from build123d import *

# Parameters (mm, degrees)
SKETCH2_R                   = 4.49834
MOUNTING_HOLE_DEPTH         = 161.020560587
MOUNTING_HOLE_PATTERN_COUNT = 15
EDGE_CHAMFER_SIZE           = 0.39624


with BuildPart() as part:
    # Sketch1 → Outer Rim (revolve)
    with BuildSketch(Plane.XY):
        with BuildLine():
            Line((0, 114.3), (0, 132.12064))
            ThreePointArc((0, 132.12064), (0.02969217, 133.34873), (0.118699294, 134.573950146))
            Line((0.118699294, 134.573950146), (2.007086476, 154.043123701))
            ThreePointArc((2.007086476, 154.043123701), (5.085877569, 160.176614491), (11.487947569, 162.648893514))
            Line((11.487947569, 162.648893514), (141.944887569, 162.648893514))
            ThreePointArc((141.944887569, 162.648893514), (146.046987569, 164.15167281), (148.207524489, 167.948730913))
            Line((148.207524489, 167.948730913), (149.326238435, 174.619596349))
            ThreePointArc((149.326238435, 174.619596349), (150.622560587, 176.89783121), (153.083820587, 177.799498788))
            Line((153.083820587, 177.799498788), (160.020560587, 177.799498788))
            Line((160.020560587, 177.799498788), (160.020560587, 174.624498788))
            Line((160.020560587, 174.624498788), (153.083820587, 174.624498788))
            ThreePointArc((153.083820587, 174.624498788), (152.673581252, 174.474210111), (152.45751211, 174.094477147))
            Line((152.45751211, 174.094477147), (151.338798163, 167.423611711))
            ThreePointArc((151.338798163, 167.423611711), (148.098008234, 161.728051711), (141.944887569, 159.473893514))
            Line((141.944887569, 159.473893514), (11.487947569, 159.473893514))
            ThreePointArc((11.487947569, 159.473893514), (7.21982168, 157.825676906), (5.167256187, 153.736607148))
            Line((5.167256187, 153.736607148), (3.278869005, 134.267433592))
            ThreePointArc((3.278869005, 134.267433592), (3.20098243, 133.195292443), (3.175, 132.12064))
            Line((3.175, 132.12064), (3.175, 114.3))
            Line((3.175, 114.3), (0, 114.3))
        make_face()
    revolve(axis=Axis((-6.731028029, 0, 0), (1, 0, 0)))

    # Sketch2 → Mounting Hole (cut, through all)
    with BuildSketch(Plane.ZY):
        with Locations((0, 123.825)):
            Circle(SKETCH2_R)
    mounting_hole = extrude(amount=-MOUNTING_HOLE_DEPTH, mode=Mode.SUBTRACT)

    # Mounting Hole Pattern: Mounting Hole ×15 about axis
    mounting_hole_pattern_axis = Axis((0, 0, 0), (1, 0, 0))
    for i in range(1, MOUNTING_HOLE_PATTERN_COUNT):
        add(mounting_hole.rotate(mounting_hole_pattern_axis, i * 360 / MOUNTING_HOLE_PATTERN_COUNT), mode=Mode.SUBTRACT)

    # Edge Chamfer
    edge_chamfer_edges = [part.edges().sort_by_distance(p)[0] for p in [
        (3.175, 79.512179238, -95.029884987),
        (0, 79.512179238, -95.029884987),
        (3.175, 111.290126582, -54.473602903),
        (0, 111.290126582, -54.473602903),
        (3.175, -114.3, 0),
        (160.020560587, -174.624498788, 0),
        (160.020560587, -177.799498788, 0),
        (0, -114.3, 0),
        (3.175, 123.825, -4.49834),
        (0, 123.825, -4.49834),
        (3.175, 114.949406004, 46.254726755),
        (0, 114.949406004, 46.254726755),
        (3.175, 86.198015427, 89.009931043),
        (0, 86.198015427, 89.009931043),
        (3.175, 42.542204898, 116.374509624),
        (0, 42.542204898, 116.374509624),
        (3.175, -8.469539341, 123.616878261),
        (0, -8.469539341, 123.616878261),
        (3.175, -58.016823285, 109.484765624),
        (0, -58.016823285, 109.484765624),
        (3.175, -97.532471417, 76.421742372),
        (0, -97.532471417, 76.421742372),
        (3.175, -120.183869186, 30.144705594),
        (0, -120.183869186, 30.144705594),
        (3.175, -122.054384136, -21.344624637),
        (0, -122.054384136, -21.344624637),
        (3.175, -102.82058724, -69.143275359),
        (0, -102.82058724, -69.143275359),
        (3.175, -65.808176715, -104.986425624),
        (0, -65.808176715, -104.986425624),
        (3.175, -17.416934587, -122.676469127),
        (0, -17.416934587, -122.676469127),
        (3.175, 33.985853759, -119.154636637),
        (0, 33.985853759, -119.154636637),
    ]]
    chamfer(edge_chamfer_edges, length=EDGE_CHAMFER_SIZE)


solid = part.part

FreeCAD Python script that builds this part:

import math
import FreeCAD as App
import Part
import Sketcher
Q = App.Units.Quantity


def edges_at(feature, points):
    """Names of the edges that pass closest to the given points."""
    edges = feature.Shape.Edges
    near = lambda p: min(range(len(edges)), key=lambda i: edges[i].distToShape(Part.Vertex(*p))[0])
    return sorted({f"Edge{near(p) + 1}" for p in points})

doc = App.newDocument("Part")
body = doc.addObject("PartDesign::Body", "Body")

# Sketch on XY plane
sketch1 = doc.addObject("Sketcher::SketchObject", "Sketch")
body.addObject(sketch1)
sketch1.AttachmentSupport = (doc.XY_Plane, [""])
sketch1.MapMode = "FlatFace"
sketch1.addGeometry(Part.LineSegment(App.Vector(0, 132.1, 0), App.Vector(0, 114.3, 0)), False)
sketch1.addGeometry(Part.LineSegment(App.Vector(0, 114.3, 0), App.Vector(3.2, 114.3, 0)), False)
sketch1.addGeometry(Part.LineSegment(App.Vector(3.2, 114.3, 0), App.Vector(3.2, 132.1, 0)), False)
sketch1.addGeometry(Part.ArcOfCircle(Part.Circle(App.Vector(25.4, 132.1, 0), App.Vector(0, 0, 1), 22.2), math.radians(174.46), math.radians(180)), False)
sketch1.addGeometry(Part.LineSegment(App.Vector(3.3, 134.3, 0), App.Vector(5.2, 153.7, 0)), False)
sketch1.addGeometry(Part.ArcOfCircle(Part.Circle(App.Vector(11.5, 153.1, 0), App.Vector(0, 0, 1), 6.4), math.radians(90), math.radians(174)), False)
sketch1.addGeometry(Part.LineSegment(App.Vector(11.5, 159.5, 0), App.Vector(141.9, 159.5, 0)), False)
sketch1.addGeometry(Part.ArcOfCircle(Part.Circle(App.Vector(141.9, 169, 0), App.Vector(0, 0, 1), 9.5), math.radians(-90), math.radians(-10)), False)
sketch1.addGeometry(Part.LineSegment(App.Vector(151.3, 167.4, 0), App.Vector(152.5, 174.1, 0)), False)
sketch1.addGeometry(Part.ArcOfCircle(Part.Circle(App.Vector(153.1, 174, 0), App.Vector(0, 0, 1), 0.6), math.radians(90), math.radians(170)), False)
sketch1.addGeometry(Part.LineSegment(App.Vector(153.1, 174.6, 0), App.Vector(160, 174.6, 0)), False)
sketch1.addGeometry(Part.LineSegment(App.Vector(160, 174.6, 0), App.Vector(160, 177.8, 0)), False)
sketch1.addGeometry(Part.LineSegment(App.Vector(160, 177.8, 0), App.Vector(153.1, 177.8, 0)), False)
sketch1.addGeometry(Part.ArcOfCircle(Part.Circle(App.Vector(153.1, 174, 0), App.Vector(0, 0, 1), 3.8), math.radians(90), math.radians(170)), False)
sketch1.addGeometry(Part.LineSegment(App.Vector(149.3, 174.6, 0), App.Vector(148.2, 167.9, 0)), False)
sketch1.addGeometry(Part.ArcOfCircle(Part.Circle(App.Vector(141.9, 169, 0), App.Vector(0, 0, 1), 6.4), math.radians(-90), math.radians(-10)), False)
sketch1.addGeometry(Part.LineSegment(App.Vector(141.9, 162.6, 0), App.Vector(11.5, 162.6, 0)), False)
sketch1.addGeometry(Part.ArcOfCircle(Part.Circle(App.Vector(11.5, 153.1, 0), App.Vector(0, 0, 1), 9.5), math.radians(90), math.radians(174)), False)
sketch1.addGeometry(Part.LineSegment(App.Vector(2, 154, 0), App.Vector(0.1, 134.6, 0)), False)
sketch1.addGeometry(Part.ArcOfCircle(Part.Circle(App.Vector(25.4, 132.1, 0), App.Vector(0, 0, 1), 25.4), math.radians(174.46), math.radians(180)), False)
sketch1.addConstraint(Sketcher.Constraint("Coincident", 0, 2, 1, 1))
sketch1.addConstraint(Sketcher.Constraint("Coincident", 1, 2, 2, 1))
sketch1.addConstraint(Sketcher.Constraint("Tangent", 2, 2, 3, 2))
sketch1.addConstraint(Sketcher.Constraint("Tangent", 3, 1, 4, 1))
sketch1.addConstraint(Sketcher.Constraint("Tangent", 4, 2, 5, 2))
sketch1.addConstraint(Sketcher.Constraint("Tangent", 5, 1, 6, 1))
sketch1.addConstraint(Sketcher.Constraint("Tangent", 6, 2, 7, 1))
sketch1.addConstraint(Sketcher.Constraint("Tangent", 7, 2, 8, 1))
sketch1.addConstraint(Sketcher.Constraint("Tangent", 8, 2, 9, 2))
sketch1.addConstraint(Sketcher.Constraint("Tangent", 9, 1, 10, 1))
sketch1.addConstraint(Sketcher.Constraint("Coincident", 10, 2, 11, 1))
sketch1.addConstraint(Sketcher.Constraint("Coincident", 11, 2, 12, 1))
sketch1.addConstraint(Sketcher.Constraint("Tangent", 12, 2, 13, 1))
sketch1.addConstraint(Sketcher.Constraint("Tangent", 13, 2, 14, 1))
sketch1.addConstraint(Sketcher.Constraint("Tangent", 14, 2, 15, 2))
sketch1.addConstraint(Sketcher.Constraint("Tangent", 15, 1, 16, 1))
sketch1.addConstraint(Sketcher.Constraint("Tangent", 16, 2, 17, 1))
sketch1.addConstraint(Sketcher.Constraint("Tangent", 17, 2, 18, 1))
sketch1.addConstraint(Sketcher.Constraint("Tangent", 18, 2, 19, 1))
sketch1.addConstraint(Sketcher.Constraint("Tangent", 19, 2, 0, 1))
sketch1.addConstraint(Sketcher.Constraint("Vertical", 0))
sketch1.addConstraint(Sketcher.Constraint("Horizontal", 1))
sketch1.addConstraint(Sketcher.Constraint("Vertical", 2))
sketch1.addConstraint(Sketcher.Constraint("Horizontal", 6))
sketch1.addConstraint(Sketcher.Constraint("Horizontal", 10))
sketch1.addConstraint(Sketcher.Constraint("Vertical", 11))
sketch1.addConstraint(Sketcher.Constraint("Horizontal", 12))
sketch1.addConstraint(Sketcher.Constraint("Horizontal", 16))
sketch1.addConstraint(Sketcher.Constraint("Coincident", 13, 3, 9, 3))
sketch1.addConstraint(Sketcher.Constraint("Coincident", 15, 3, 7, 3))
sketch1.addConstraint(Sketcher.Constraint("Coincident", 17, 3, 5, 3))
sketch1.addConstraint(Sketcher.Constraint("Coincident", 19, 3, 3, 3))
sketch1.addConstraint(Sketcher.Constraint("PointOnObject", 0, 2, -2))
sketch1.addConstraint(Sketcher.Constraint("Parallel", 8, 14))
sketch1.addConstraint(Sketcher.Constraint("Parallel", 4, 18))
sketch1.addConstraint(Sketcher.Constraint("DistanceY", -1, 1, 0, 2, Q("4.5 in")))
sketch1.addConstraint(Sketcher.Constraint("DistanceX", 1, 1, 1, 2, Q("0.125 in")))
sketch1.addConstraint(Sketcher.Constraint("Angle", 4, Q("84.46 deg")))
sketch1.addConstraint(Sketcher.Constraint("Angle", 8, Q("80.48 deg")))
sketch1.addConstraint(Sketcher.Constraint("Radius", 3, Q("22.237199 mm")))
sketch1.addConstraint(Sketcher.Constraint("DistanceX", 6, 1, 6, 2, Q("5.1361 in")))
sketch1.addConstraint(Sketcher.Constraint("DistanceX", 10, 1, 10, 2, Q("0.2731 in")))
sketch1.addConstraint(Sketcher.Constraint("DistanceY", 0, 2, 0, 1, Q("0.7016 in")))
sketch1.addConstraint(Sketcher.Constraint("Radius", 7, Q("9.525091 mm")))
sketch1.addConstraint(Sketcher.Constraint("Distance", 4, Q("0.7701 in")))
sketch1.addConstraint(Sketcher.Constraint("Distance", 8, Q("0.2663 in")))
sketch1.addConstraint(Sketcher.Constraint("Radius", 5, Q("6.350354 mm")))
sketch1.addConstraint(Sketcher.Constraint("Radius", 9, Q("0.635054 mm")))
revolution = doc.addObject("PartDesign::Revolution", "Revolution")
body.addObject(revolution)
revolution.Profile = sketch1
revolution.ReferenceAxis = (sketch1, ["H_Axis"])
revolution.Angle = 360

# Sketch on YZ plane
sketch2 = doc.addObject("Sketcher::SketchObject", "Sketch001")
body.addObject(sketch2)
sketch2.AttachmentSupport = (doc.YZ_Plane, [""])
sketch2.MapMode = "FlatFace"
sketch2.addGeometry(Part.Circle(App.Vector(123.8, 0, 0), App.Vector(0, 0, 1), 4.5), False)
sketch2.addConstraint(Sketcher.Constraint("PointOnObject", 0, 3, -1))
sketch2.addConstraint(Sketcher.Constraint("Diameter", 0, Q("0.3542 in")))
sketch2.addConstraint(Sketcher.Constraint("DistanceX", -1, 1, 0, 3, Q("4.875 in")))
pocket1 = doc.addObject("PartDesign::Pocket", "Pocket")
body.addObject(pocket1)
pocket1.Profile = sketch2
pocket1.Type = "ThroughAll"
pocket1.Reversed = True
doc.recompute()

polarpattern = doc.addObject("PartDesign::PolarPattern", "PolarPattern")
body.addObject(polarpattern)
polarpattern.Originals = [pocket1]
polarpattern.Axis = (doc.X_Axis, [""])
polarpattern.Angle = 360
polarpattern.Occurrences = 15
body.Tip = polarpattern
doc.recompute()

chamfer = doc.addObject("PartDesign::Chamfer", "Chamfer")
body.addObject(chamfer)
chamfer.Base = (polarpattern, edges_at(polarpattern, [
    (3.175, 79.512, -95.03),
    (0, 79.512, -95.03),
    (3.175, 111.29, -54.474),
    (0, 111.29, -54.474),
    (3.175, -114.3, 0),
    (160.021, -174.624, 0),
    (160.021, -177.799, 0),
    (0, -114.3, 0),
    (3.175, 123.825, -4.498),
    (0, 123.825, -4.498),
    (3.175, 114.949, 46.255),
    (0, 114.949, 46.255),
    (3.175, 86.198, 89.01),
    (0, 86.198, 89.01),
    (3.175, 42.542, 116.375),
    (0, 42.542, 116.375),
    (3.175, -8.47, 123.617),
    (0, -8.47, 123.617),
    (3.175, -58.017, 109.485),
    (0, -58.017, 109.485),
    (3.175, -97.532, 76.422),
    (0, -97.532, 76.422),
    (3.175, -120.184, 30.145),
    (0, -120.184, 30.145),
    (3.175, -122.054, -21.345),
    (0, -122.054, -21.345),
    (3.175, -102.821, -69.143),
    (0, -102.821, -69.143),
    (3.175, -65.808, -104.986),
    (0, -65.808, -104.986),
    (3.175, -17.417, -122.676),
    (0, -17.417, -122.676),
    (3.175, 33.986, -119.155),
    (0, 33.986, -119.155),
]))
chamfer.Size = Q("0.0156 in")

doc.recompute()
